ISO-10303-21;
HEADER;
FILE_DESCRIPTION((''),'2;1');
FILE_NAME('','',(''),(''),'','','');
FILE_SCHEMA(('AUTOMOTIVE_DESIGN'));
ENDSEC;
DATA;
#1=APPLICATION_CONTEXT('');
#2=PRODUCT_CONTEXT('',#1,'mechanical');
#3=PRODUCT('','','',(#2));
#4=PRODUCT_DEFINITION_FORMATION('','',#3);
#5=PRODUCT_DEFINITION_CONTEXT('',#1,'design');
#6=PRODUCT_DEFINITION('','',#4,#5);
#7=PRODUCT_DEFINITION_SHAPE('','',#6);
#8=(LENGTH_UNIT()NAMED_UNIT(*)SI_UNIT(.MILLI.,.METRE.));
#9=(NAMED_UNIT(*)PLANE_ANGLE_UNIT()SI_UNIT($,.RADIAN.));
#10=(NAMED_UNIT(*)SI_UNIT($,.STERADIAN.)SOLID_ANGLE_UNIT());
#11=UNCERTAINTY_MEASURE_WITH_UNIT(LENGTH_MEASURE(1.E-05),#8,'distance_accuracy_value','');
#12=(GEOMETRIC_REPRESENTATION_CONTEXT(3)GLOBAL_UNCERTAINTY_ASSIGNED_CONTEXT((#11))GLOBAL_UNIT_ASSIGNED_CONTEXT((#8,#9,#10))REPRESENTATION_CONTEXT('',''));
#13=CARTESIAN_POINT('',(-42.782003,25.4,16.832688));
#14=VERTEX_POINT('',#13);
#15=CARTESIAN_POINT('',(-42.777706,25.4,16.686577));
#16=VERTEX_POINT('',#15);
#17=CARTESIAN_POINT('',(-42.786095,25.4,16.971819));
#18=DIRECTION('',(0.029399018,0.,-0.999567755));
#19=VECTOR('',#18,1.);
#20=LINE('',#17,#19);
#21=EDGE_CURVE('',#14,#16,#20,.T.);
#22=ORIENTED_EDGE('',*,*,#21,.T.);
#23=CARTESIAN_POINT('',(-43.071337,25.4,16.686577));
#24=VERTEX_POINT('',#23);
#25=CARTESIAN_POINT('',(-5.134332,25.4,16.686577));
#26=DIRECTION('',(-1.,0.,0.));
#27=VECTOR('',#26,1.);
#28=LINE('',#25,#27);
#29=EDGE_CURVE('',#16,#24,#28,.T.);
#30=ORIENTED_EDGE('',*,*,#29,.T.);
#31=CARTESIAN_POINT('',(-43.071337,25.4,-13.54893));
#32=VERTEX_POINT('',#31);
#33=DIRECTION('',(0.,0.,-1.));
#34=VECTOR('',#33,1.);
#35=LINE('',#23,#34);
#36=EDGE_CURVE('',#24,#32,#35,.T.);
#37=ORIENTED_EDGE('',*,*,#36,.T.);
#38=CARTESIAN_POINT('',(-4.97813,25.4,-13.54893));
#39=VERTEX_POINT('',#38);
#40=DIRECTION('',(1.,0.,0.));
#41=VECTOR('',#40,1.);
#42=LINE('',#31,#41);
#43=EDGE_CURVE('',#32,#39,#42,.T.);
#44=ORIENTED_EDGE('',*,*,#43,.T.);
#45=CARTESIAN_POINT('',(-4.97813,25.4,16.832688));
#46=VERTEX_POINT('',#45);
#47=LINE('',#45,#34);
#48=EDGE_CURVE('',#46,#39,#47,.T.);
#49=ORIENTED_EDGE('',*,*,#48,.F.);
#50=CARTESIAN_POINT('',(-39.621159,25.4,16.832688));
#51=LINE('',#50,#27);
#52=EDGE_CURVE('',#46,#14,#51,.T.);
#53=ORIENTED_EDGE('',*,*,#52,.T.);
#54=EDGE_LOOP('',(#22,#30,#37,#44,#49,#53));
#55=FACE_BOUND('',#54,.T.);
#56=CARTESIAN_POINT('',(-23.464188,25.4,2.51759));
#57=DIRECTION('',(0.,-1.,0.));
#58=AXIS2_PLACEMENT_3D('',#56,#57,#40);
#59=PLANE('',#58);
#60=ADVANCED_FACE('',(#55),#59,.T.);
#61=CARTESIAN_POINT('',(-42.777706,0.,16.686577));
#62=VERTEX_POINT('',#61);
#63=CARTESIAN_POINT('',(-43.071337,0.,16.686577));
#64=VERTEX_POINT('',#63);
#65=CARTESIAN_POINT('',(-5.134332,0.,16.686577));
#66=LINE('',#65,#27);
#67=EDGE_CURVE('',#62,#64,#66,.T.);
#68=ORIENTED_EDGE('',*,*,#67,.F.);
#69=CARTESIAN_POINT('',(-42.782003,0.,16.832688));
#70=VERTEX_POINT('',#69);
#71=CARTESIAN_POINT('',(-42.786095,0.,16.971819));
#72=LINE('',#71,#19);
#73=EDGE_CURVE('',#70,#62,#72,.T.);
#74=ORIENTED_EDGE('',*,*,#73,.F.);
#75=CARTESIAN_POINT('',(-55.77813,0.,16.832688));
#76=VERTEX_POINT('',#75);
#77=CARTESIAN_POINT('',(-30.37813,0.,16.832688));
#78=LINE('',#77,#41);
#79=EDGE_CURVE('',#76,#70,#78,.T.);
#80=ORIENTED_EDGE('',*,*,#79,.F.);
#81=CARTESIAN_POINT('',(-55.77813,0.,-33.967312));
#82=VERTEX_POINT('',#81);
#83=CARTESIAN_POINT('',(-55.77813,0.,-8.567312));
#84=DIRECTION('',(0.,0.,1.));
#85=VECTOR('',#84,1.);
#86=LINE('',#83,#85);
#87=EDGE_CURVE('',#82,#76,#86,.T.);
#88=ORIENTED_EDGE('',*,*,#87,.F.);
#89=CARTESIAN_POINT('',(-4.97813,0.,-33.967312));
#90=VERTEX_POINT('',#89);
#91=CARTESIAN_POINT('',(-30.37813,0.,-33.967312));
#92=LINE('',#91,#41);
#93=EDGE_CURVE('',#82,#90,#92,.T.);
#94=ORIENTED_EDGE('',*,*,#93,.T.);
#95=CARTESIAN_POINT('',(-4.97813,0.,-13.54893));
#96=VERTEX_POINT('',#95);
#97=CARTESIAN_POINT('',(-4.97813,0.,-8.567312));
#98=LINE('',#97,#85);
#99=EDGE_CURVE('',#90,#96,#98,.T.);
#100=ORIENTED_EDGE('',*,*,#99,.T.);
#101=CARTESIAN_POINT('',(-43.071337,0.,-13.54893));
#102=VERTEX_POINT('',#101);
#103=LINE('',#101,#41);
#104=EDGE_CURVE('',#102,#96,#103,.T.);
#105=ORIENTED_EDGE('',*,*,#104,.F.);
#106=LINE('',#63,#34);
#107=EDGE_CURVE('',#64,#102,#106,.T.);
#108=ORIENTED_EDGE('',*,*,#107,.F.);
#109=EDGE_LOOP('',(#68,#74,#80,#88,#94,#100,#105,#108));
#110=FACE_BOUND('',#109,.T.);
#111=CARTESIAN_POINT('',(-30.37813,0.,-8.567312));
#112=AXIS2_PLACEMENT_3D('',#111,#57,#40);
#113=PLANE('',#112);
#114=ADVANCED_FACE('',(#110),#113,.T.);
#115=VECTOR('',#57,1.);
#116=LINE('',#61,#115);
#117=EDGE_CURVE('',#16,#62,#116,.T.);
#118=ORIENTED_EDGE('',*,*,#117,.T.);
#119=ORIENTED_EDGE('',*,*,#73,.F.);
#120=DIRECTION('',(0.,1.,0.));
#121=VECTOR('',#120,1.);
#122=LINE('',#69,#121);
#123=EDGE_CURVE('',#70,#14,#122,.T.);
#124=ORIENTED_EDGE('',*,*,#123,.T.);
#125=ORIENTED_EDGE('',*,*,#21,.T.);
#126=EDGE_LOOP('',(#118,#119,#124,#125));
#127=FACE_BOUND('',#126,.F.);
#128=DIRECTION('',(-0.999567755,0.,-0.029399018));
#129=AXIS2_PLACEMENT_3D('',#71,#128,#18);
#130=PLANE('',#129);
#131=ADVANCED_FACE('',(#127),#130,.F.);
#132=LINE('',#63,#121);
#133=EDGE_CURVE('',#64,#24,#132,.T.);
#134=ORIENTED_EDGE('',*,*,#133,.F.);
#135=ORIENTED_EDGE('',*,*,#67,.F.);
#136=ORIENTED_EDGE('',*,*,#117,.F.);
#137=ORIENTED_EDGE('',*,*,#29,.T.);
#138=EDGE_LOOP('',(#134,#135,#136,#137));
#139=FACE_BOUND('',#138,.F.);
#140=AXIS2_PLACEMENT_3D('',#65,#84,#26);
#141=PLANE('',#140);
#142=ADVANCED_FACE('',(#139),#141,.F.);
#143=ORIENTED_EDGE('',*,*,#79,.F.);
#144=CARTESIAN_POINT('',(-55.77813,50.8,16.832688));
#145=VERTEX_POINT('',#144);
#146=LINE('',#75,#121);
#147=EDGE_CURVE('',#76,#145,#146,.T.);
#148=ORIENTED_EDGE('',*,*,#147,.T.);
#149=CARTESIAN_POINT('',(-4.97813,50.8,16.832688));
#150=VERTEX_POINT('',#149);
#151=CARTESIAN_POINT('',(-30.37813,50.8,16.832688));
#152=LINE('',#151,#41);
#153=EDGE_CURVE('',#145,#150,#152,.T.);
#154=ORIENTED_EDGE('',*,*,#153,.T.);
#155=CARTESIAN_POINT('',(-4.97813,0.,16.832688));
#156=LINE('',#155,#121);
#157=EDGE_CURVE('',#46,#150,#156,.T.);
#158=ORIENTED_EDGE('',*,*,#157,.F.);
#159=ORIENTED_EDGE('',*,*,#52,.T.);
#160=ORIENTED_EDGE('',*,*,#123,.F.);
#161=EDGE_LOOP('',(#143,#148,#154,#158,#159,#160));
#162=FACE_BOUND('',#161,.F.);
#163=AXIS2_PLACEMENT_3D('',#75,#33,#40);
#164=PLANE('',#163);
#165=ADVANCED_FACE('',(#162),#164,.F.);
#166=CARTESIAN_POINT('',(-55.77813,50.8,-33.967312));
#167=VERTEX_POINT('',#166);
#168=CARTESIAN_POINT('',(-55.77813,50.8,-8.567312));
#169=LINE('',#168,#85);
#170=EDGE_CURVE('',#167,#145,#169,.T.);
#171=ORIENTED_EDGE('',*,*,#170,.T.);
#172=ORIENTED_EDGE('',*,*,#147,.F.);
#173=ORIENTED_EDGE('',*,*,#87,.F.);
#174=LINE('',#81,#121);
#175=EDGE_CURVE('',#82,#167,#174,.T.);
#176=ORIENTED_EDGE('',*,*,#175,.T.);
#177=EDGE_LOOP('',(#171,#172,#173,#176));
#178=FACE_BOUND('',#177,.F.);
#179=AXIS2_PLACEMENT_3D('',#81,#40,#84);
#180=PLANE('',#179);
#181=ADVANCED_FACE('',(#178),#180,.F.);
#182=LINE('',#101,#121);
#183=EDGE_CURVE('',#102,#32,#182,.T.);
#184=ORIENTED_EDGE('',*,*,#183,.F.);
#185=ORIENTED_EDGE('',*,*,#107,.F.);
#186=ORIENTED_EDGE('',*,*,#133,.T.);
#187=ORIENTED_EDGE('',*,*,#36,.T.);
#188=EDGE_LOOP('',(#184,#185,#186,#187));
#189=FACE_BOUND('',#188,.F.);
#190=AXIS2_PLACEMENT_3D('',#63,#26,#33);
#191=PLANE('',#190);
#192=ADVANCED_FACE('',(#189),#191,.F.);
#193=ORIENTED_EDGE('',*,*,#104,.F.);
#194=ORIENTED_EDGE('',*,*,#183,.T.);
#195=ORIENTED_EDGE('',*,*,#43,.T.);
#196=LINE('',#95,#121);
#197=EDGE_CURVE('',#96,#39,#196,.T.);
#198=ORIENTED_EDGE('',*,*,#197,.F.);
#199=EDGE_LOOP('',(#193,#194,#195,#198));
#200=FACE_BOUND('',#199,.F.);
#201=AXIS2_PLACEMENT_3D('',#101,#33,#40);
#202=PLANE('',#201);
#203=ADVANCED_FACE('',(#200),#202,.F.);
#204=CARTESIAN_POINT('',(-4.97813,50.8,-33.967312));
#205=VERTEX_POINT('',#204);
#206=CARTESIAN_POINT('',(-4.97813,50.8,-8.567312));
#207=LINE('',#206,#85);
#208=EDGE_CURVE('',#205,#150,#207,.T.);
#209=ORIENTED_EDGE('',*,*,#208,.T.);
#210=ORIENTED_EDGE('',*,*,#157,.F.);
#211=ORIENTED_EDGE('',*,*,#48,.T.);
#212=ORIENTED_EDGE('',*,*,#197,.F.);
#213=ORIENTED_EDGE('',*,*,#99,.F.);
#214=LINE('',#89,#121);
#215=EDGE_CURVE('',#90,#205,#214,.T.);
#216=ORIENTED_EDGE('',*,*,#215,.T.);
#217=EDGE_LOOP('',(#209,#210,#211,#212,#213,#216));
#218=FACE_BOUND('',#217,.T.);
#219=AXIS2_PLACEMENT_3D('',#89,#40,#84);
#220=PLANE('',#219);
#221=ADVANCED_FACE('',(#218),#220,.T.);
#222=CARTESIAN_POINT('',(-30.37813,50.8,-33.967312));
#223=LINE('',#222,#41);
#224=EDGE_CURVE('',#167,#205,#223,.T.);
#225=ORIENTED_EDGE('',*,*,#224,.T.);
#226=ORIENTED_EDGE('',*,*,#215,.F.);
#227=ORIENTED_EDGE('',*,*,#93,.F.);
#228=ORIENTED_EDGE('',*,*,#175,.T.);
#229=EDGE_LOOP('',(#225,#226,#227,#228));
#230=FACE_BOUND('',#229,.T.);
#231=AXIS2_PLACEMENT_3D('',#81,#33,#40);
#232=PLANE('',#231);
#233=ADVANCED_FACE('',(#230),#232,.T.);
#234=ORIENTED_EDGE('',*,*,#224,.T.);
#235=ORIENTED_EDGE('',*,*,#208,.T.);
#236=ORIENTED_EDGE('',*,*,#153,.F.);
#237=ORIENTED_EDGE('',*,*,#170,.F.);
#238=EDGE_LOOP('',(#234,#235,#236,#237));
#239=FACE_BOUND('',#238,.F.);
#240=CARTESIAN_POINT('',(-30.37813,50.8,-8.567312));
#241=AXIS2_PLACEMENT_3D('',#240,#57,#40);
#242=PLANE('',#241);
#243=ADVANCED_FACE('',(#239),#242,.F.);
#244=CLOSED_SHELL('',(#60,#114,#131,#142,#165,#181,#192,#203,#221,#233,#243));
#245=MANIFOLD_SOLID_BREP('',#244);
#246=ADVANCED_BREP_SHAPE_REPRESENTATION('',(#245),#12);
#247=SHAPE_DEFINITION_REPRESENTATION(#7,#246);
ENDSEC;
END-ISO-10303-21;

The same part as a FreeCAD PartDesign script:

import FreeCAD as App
import Part
import Sketcher
from FreeCAD import Vector
Q = App.Units.Quantity


def add_polygon(sketch, points):
    """Adds a closed chain of lines whose ends are joined by coincident constraints."""
    first, n = sketch.GeometryCount, len(points)
    for a, b in zip(points, points[1:] + points[:1]):
        sketch.addGeometry(Part.LineSegment(App.Vector(*a, 0), App.Vector(*b, 0)), False)
    for i in range(n):
        sketch.addConstraint(Sketcher.Constraint("Coincident", first + i, 2, first + (i + 1) % n, 1))

doc = App.newDocument("Part")
body = doc.addObject("PartDesign::Body", "Body")

sketch1 = doc.addObject("Sketcher::SketchObject", "Sketch")
body.addObject(sketch1)
sketch1.AttachmentSupport = (doc.XZ_Plane, [""])
sketch1.MapMode = "FlatFace"
add_polygon(sketch1, [(-56, 17), (-56, -34), (-5, -34), (-5, 17)])
sketch1.addConstraint([
    Sketcher.Constraint("Vertical", 0),
    Sketcher.Constraint("Horizontal", 1),
    Sketcher.Constraint("Vertical", 2),
    Sketcher.Constraint("Horizontal", 3),
    Sketcher.Constraint("Equal", 3, 0),
    Sketcher.Constraint("DistanceX", 1, 1, 1, 2, Q("2 in")),
    Sketcher.Constraint("DistanceX", 0, 2, -1, 1, Q("55.77813 mm")),
    Sketcher.Constraint("DistanceY", -1, 1, 2, 2, Q("16.832688 mm")),
])
pad1 = doc.addObject("PartDesign::Pad", "Pad")
body.addObject(pad1)
pad1.Profile = sketch1
pad1.Length = Q("2 in")
pad1.Reversed = True

sketch2 = doc.addObject("Sketcher::SketchObject", "Sketch001")
body.addObject(sketch2)
sketch2.AttachmentSupport = (doc.XZ_Plane, [""])
sketch2.MapMode = "FlatFace"
add_polygon(sketch2, [(-43, -14), (-5, -14), (-5, 17), (-43, 17)])
sketch2.addConstraint([
    Sketcher.Constraint("Horizontal", 0),
    Sketcher.Constraint("Horizontal", 2),
    Sketcher.Constraint("Vertical", 3),
    Sketcher.Constraint("DistanceX", 0, 1, 0, 2, Q("38.222245 mm")),
    Sketcher.Constraint("DistanceX", 2, 2, 2, 1, Q("37.937005 mm")),
    Sketcher.Constraint("DistanceY", 3, 2, 3, 1, Q("30.235507 mm")),
    Sketcher.Constraint("DistanceX", 0, 2, -1, 1, Q("4.849092 mm")),
    Sketcher.Constraint("DistanceY", 0, 2, -1, 1, Q("13.54893 mm")),
])
pocket1 = doc.addObject("PartDesign::Pocket", "Pocket")
body.addObject(pocket1)
pocket1.Profile = sketch2
pocket1.Length = Q("1 in")

sketch3 = doc.addObject("Sketcher::SketchObject", "Sketch002")
body.addObject(sketch3)
sketch3.AttachmentSupport = (doc.XZ_Plane, [""])
sketch3.MapMode = "FlatFace"
add_polygon(sketch3, [(-5, 17), (-43, 17), (-42, -12), (-5, -12)])
sketch3.addConstraint([
    Sketcher.Constraint("Horizontal", 0),
    Sketcher.Constraint("Horizontal", 2),
    Sketcher.Constraint("Vertical", 3),
    Sketcher.Constraint("Distance", 1, Q("29.107128 mm")),
    Sketcher.Constraint("DistanceX", 0, 2, 0, 1, Q("38.222244 mm")),
    Sketcher.Constraint("DistanceX", 2, 1, 2, 2, Q("37.366523 mm")),
    Sketcher.Constraint("DistanceY", -1, 1, 0, 2, Q("16.971819 mm")),
    Sketcher.Constraint("DistanceX", 2, 2, -1, 1, Q("4.563851 mm")),
])
pocket2 = doc.addObject("PartDesign::Pocket", "Pocket001")
body.addObject(pocket2)
pocket2.Profile = sketch3
pocket2.Length = Q("1 in")

doc.recompute()
